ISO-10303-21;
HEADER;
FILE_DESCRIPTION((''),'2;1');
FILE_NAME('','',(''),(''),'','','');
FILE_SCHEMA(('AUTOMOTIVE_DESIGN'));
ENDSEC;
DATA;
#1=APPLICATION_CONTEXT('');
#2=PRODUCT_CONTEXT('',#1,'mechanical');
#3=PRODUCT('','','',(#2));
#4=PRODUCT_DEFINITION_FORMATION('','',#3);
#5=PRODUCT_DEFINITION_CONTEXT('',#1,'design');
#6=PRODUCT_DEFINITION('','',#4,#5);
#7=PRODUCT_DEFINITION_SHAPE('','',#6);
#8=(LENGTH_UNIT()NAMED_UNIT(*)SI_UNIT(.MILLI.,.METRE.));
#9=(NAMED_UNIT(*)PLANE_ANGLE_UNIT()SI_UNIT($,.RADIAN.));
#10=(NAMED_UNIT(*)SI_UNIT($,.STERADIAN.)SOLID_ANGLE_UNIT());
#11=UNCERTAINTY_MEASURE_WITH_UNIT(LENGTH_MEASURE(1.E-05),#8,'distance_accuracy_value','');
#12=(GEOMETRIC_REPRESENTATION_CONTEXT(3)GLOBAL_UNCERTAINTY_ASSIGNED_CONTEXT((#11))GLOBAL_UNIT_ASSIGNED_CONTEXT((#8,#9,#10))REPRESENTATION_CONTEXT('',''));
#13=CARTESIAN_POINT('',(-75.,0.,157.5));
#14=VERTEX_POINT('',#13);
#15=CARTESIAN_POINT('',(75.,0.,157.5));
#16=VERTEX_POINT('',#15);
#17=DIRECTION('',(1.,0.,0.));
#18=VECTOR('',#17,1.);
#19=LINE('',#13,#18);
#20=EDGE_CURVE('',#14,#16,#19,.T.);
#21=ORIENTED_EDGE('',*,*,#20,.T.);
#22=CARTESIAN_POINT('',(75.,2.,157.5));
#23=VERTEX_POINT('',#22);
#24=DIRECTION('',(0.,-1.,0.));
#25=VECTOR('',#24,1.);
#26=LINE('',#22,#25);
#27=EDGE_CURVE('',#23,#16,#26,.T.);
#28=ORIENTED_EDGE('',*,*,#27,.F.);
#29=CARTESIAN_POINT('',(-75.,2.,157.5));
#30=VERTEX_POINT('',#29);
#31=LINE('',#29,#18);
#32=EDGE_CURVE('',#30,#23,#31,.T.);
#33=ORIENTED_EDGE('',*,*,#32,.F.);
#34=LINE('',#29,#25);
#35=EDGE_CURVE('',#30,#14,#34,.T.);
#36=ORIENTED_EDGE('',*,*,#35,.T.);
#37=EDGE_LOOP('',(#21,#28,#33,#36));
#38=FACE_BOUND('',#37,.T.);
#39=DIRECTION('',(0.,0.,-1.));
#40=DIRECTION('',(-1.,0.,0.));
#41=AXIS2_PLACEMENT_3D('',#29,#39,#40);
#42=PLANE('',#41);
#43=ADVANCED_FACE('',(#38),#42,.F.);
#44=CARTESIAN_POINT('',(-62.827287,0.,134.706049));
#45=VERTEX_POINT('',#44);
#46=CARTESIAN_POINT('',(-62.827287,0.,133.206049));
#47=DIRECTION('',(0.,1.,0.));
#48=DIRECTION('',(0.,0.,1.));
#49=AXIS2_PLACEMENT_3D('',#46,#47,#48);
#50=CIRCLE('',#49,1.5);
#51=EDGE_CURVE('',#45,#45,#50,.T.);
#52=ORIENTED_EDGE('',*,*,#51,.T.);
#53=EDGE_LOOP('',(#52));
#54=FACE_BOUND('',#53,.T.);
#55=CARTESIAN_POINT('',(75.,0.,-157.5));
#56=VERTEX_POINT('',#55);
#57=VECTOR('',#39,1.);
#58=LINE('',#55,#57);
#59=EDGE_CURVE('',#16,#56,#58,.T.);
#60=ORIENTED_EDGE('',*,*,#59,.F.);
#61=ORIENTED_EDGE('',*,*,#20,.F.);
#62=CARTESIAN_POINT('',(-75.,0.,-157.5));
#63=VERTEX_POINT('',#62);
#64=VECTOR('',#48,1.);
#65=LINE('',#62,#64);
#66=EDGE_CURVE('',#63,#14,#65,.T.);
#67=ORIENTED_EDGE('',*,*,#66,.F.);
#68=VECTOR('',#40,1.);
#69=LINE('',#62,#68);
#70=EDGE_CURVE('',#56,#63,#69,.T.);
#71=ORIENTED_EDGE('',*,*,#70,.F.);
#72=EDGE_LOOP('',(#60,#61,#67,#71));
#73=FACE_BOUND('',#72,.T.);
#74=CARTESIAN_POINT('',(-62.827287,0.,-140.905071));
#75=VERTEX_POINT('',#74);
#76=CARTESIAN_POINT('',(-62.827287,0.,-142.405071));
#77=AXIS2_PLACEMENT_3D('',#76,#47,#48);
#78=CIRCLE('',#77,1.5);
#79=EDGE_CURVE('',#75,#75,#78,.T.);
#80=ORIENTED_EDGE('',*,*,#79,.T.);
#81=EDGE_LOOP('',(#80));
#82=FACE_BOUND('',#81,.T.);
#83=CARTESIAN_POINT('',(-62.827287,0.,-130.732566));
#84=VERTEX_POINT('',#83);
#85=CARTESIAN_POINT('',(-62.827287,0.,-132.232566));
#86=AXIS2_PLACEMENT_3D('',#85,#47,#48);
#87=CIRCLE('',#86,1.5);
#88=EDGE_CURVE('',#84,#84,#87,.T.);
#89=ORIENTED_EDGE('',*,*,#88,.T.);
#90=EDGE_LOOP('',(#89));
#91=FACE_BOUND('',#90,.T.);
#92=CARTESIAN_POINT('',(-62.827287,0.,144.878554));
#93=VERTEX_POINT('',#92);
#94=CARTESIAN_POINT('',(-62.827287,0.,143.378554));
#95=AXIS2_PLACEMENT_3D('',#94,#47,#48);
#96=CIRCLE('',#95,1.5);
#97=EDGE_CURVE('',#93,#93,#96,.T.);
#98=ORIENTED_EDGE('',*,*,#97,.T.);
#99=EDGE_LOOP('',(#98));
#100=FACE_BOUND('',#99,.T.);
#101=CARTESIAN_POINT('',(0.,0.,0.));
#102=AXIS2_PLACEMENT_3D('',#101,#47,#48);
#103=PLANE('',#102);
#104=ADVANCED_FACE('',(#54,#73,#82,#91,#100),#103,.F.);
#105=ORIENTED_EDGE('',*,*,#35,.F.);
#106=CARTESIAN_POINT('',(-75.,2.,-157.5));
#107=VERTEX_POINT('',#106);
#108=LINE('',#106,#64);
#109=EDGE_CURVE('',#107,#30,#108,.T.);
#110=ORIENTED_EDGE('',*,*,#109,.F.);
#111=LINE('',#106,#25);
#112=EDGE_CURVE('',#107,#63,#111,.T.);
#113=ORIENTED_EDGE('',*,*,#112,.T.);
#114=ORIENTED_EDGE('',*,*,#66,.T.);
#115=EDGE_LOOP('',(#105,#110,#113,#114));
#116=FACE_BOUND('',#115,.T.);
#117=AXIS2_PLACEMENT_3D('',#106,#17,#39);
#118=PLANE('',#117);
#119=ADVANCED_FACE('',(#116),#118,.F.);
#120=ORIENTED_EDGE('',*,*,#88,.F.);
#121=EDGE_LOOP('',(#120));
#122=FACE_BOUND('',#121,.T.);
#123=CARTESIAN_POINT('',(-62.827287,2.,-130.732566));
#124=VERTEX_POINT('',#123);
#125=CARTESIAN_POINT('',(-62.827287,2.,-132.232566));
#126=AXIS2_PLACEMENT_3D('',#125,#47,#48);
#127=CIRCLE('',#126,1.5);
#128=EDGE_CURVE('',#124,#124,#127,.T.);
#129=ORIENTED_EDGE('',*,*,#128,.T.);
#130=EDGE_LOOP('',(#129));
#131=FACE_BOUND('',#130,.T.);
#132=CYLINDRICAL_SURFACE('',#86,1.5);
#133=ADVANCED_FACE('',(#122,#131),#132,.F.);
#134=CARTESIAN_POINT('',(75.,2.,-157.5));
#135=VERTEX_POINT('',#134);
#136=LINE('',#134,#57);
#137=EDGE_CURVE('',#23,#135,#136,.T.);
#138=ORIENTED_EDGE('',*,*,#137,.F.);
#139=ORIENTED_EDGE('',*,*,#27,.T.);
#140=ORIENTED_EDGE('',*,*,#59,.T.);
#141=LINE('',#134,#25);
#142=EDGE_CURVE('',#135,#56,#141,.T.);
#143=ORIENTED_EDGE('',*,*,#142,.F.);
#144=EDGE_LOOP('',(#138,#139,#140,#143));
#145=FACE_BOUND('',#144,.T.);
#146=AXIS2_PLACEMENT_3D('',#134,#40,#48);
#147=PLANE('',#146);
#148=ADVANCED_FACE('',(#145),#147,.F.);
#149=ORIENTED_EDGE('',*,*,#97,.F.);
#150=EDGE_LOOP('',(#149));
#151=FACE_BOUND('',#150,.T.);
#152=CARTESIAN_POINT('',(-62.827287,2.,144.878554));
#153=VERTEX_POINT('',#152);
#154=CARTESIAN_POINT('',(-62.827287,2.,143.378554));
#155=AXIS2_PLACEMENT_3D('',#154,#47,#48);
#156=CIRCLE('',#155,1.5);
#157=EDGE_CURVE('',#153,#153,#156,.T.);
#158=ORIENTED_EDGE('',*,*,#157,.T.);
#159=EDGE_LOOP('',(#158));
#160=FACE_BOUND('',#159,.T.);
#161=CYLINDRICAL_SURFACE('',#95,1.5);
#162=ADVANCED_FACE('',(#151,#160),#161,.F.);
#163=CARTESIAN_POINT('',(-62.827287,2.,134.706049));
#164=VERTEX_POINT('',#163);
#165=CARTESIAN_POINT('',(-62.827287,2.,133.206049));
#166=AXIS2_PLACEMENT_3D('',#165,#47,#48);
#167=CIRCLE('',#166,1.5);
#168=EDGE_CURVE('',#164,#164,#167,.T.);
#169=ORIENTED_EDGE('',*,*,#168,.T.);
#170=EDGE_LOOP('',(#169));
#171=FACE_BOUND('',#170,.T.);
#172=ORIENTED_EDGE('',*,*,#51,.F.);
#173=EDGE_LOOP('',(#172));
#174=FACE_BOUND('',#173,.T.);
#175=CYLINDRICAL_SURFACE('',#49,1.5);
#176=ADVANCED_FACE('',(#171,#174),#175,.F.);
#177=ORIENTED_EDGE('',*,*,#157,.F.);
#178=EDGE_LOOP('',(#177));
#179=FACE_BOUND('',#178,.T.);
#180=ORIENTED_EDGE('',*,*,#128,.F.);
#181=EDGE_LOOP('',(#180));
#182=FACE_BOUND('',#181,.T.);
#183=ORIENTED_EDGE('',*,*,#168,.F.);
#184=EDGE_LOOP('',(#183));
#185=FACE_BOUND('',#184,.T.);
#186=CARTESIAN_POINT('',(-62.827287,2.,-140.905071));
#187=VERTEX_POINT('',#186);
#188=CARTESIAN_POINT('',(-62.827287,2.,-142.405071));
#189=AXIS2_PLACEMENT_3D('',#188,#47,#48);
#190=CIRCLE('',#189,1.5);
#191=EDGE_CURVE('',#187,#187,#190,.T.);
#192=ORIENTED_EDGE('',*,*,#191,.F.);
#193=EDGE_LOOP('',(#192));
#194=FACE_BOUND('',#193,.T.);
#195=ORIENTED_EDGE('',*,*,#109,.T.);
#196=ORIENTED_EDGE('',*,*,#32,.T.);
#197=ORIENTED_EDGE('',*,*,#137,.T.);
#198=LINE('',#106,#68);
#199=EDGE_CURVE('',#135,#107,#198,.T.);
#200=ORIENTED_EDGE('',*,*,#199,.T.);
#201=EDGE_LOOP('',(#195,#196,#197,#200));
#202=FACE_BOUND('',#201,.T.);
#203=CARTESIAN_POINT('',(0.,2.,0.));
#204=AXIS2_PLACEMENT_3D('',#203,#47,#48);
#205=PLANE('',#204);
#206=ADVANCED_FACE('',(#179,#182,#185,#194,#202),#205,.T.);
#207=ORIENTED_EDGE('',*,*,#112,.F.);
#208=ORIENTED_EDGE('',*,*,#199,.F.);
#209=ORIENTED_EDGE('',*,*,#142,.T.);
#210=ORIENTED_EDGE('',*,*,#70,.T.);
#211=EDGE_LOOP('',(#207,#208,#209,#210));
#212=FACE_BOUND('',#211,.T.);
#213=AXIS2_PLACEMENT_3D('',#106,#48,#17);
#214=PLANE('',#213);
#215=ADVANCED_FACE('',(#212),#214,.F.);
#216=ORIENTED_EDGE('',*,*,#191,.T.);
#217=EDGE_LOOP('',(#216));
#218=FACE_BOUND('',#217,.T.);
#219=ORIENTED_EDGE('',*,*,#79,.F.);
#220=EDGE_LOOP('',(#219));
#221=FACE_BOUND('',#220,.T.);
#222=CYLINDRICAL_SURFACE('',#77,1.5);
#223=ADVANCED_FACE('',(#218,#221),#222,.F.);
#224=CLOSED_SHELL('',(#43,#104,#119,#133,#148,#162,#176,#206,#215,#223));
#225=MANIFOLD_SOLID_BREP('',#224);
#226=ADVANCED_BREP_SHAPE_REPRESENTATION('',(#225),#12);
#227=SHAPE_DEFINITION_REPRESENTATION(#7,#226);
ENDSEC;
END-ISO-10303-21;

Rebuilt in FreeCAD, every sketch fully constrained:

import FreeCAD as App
import Part
import Sketcher
from FreeCAD import Vector

doc = App.newDocument("Part")
body = doc.addObject("PartDesign::Body", "Body")

# Sketch on XZ plane
sketch1 = doc.addObject("Sketcher::SketchObject", "Sketch")
body.addObject(sketch1)
sketch1.AttachmentSupport = (doc.XZ_Plane, [""])
sketch1.MapMode = "FlatFace"
sketch1.addGeometry([
    Part.LineSegment(Vector(-75, -157.5, 0), Vector(-75, 157.5, 0)),
    Part.LineSegment(Vector(-75, 157.5, 0), Vector(75, 157.5, 0)),
    Part.LineSegment(Vector(75, 157.5, 0), Vector(75, -157.5, 0)),
    Part.LineSegment(Vector(75, -157.5, 0), Vector(-75, -157.5, 0)),
], False)
sketch1.addConstraint([
    Sketcher.Constraint("Coincident", 0, 2, 1, 1),
    Sketcher.Constraint("Coincident", 1, 2, 2, 1),
    Sketcher.Constraint("Coincident", 2, 2, 3, 1),
    Sketcher.Constraint("Coincident", 3, 2, 0, 1),
    Sketcher.Constraint("Vertical", 0),
    Sketcher.Constraint("Horizontal", 1),
    Sketcher.Constraint("Vertical", 2),
    Sketcher.Constraint("Horizontal", 3),
    Sketcher.Constraint("Symmetric", 0, 2, 2, 2, -1, 1),
    Sketcher.Constraint("DistanceX", 1, 1, 1, 2, 150.0),
    Sketcher.Constraint("DistanceY", 0, 1, 0, 2, 315.0),
])
pad1 = doc.addObject("PartDesign::Pad", "Pad")
body.addObject(pad1)
pad1.Profile = sketch1
pad1.Length = 2
pad1.Reversed = True

# Sketch on XZ plane
sketch2 = doc.addObject("Sketcher::SketchObject", "Sketch001")
body.addObject(sketch2)
sketch2.AttachmentSupport = (doc.XZ_Plane, [""])
sketch2.MapMode = "FlatFace"
sketch2.AttachmentOffset = App.Placement(Vector(0, 0, -2), App.Rotation())
sketch2.addGeometry([
    Part.Circle(Vector(-62.827287, 143.378554, 0), Vector(0, 0, 1), 1.5),
    Part.Circle(Vector(-62.827287, 133.206049, 0), Vector(0, 0, 1), 1.5),
    Part.Circle(Vector(-62.827287, -132.232566, 0), Vector(0, 0, 1), 1.5),
    Part.Circle(Vector(-62.827287, -142.405071, 0), Vector(0, 0, 1), 1.5),
], False)
sketch2.addConstraint([
    Sketcher.Constraint("Equal", 0, 1),
    Sketcher.Constraint("Equal", 1, 2),
    Sketcher.Constraint("Equal", 2, 3),
    Sketcher.Constraint("Vertical", 0, 3, 1, 3),
    Sketcher.Constraint("Vertical", 1, 3, 2, 3),
    Sketcher.Constraint("Vertical", 2, 3, 3, 3),
    Sketcher.Constraint("Diameter", 0, 3.0),
    Sketcher.Constraint("DistanceY", -1, 1, 1, 3, 133.206049),
    Sketcher.Constraint("DistanceY", 3, 3, -1, 1, 142.405071),
    Sketcher.Constraint("DistanceY", 2, 3, 0, 3, 275.61112),
    Sketcher.Constraint("DistanceX", 0, 3, -1, 1, 62.827287),
    Sketcher.Constraint("DistanceY", -1, 1, 0, 3, 143.378554),
])
pocket1 = doc.addObject("PartDesign::Pocket", "Pocket")
body.addObject(pocket1)
pocket1.Profile = sketch2
pocket1.Type = "ThroughAll"
pocket1.Reversed = True

doc.recompute()
